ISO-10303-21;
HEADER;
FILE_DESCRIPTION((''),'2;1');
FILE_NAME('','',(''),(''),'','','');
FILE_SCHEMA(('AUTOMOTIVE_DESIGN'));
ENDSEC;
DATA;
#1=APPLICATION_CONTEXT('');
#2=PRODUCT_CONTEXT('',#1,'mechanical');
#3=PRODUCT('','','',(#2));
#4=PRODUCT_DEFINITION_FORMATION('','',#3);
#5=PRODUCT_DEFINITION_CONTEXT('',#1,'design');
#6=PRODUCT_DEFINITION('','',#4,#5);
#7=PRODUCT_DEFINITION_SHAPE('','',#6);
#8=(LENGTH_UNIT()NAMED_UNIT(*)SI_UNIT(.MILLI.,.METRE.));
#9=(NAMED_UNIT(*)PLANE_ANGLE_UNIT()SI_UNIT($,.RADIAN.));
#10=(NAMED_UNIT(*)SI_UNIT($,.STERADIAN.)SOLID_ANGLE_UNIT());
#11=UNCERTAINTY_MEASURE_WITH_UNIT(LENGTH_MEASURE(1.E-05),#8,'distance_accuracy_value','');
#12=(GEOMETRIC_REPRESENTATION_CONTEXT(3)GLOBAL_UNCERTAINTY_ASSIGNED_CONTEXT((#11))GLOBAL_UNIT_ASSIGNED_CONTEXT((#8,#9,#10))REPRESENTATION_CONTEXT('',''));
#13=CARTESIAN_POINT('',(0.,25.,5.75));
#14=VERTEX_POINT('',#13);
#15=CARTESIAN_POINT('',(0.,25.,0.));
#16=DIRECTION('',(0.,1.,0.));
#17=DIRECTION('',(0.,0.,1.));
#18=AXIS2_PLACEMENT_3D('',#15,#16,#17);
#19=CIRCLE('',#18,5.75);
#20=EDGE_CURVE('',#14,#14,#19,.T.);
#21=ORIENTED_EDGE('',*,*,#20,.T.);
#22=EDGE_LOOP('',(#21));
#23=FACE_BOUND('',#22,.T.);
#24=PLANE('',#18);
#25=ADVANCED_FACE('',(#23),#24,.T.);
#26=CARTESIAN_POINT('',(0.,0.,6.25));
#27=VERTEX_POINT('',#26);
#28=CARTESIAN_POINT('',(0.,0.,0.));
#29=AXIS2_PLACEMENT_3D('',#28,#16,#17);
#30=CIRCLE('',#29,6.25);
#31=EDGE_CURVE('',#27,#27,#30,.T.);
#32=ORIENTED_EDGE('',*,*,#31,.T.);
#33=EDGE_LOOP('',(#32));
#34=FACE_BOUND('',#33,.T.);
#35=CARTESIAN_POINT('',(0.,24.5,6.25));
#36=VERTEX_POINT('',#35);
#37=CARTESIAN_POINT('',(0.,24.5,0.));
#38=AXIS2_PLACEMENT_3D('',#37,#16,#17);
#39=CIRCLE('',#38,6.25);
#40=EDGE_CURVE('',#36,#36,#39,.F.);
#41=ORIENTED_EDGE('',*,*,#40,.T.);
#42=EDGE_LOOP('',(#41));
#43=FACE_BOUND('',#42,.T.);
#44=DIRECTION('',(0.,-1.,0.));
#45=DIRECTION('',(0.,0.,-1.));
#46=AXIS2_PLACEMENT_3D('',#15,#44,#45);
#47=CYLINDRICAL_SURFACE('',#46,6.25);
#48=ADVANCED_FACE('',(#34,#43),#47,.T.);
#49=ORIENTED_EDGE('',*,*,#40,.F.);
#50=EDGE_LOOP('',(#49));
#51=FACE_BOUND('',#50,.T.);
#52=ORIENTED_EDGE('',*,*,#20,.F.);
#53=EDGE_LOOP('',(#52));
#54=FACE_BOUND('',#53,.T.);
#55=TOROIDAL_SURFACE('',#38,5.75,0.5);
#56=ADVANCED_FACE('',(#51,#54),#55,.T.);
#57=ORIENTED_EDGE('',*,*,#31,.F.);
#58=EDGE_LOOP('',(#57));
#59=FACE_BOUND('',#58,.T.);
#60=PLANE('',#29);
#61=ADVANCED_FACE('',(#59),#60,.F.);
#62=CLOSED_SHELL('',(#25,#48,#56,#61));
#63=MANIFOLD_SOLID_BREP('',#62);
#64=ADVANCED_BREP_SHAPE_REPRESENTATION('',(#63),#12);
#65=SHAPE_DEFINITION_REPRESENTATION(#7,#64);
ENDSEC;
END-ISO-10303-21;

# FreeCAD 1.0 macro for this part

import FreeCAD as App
import Part
import Sketcher
Q = App.Units.Quantity


def edges_at(feature, points):
    """Names of the edges that pass closest to the given points."""
    edges = feature.Shape.Edges
    near = lambda p: min(range(len(edges)), key=lambda i: edges[i].distToShape(Part.Vertex(*p))[0])
    return sorted({f"Edge{near(p) + 1}" for p in points})

doc = App.newDocument("Part")
body = doc.addObject("PartDesign::Body", "Body")

# Sketch on XZ plane
sketch1 = body.newObject("Sketcher::SketchObject", "Sketch")
sketch1.AttachmentSupport = (doc.getObject("XZ_Plane"), [""])
sketch1.MapMode = "FlatFace"
sketch1.addGeometry(Part.Circle(App.Vector(0, 0, 0), App.Vector(0, 0, 1), 6), False)
sketch1.addConstraint(Sketcher.Constraint("Coincident", 0, 3, -1, 1))
sketch1.addConstraint(Sketcher.Constraint("Diameter", 0, Q("12.5 mm")))
pad1 = body.newObject("PartDesign::Pad", "Pad")
pad1.Profile = sketch1
pad1.Length = 25
pad1.Reversed = True
doc.recompute()

fillet = body.newObject("PartDesign::Fillet", "Fillet")
fillet.Base = (pad1, edges_at(pad1, [(-6.25, 25, 0)]))
fillet.Radius = 0.5

doc.recompute()
